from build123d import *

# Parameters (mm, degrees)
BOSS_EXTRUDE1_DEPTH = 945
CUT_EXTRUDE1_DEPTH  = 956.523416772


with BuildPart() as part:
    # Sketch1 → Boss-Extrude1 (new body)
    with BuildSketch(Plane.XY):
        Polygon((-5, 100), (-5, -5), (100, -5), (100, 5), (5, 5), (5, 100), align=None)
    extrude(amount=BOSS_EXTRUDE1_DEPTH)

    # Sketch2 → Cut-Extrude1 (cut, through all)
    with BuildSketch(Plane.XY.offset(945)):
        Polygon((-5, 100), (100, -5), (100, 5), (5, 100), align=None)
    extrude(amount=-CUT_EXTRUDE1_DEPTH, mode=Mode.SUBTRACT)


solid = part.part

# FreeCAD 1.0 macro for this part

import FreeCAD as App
import Part
import Sketcher


def add_polygon(sketch, points):
    """Adds a closed chain of lines whose ends are joined by coincident constraints."""
    first, n = sketch.GeometryCount, len(points)
    for a, b in zip(points, points[1:] + points[:1]):
        sketch.addGeometry(Part.LineSegment(App.Vector(*a, 0), App.Vector(*b, 0)), False)
    for i in range(n):
        sketch.addConstraint(Sketcher.Constraint("Coincident", first + i, 2, first + (i + 1) % n, 1))

doc = App.newDocument("Part")
body = doc.addObject("PartDesign::Body", "Body")

# Sketch on XY plane
sketch1 = doc.addObject("Sketcher::SketchObject", "Sketch")
body.addObject(sketch1)
sketch1.AttachmentSupport = (doc.XY_Plane, [""])
sketch1.MapMode = "FlatFace"
add_polygon(sketch1, [(-5, 100), (-5, -5), (100, -5), (100, 5), (5, 5), (5, 100)])  # lines 0-5
sketch1.addConstraint([
    Sketcher.Constraint("Vertical", 0),
    Sketcher.Constraint("Horizontal", 1),
    Sketcher.Constraint("Vertical", 2),
    Sketcher.Constraint("Horizontal", 3),
    Sketcher.Constraint("Vertical", 4),
    Sketcher.Constraint("Horizontal", 5),
    Sketcher.Constraint("Symmetric", 0, 2, 3, 2, -1, 1),
    Sketcher.Constraint("Equal", 1, 0),
    Sketcher.Constraint("Equal", 5, 2),
    Sketcher.Constraint("DistanceX", 1, 1, 1, 2, 105.0),
    Sketcher.Constraint("DistanceX", 3, 2, 3, 1, 95.0),
])
pad1 = doc.addObject("PartDesign::Pad", "Pad")
body.addObject(pad1)
pad1.Profile = sketch1
pad1.Length = 945

# Sketch on XY plane
sketch2 = doc.addObject("Sketcher::SketchObject", "Sketch001")
body.addObject(sketch2)
sketch2.AttachmentSupport = (doc.XY_Plane, [""])
sketch2.MapMode = "FlatFace"
sketch2.AttachmentOffset = App.Placement(App.Vector(0, 0, 945), App.Rotation())
add_polygon(sketch2, [(-5, 100), (100, -5), (100, 5), (5, 100)])  # lines 0-3
sketch2.addConstraint([
    Sketcher.Constraint("Vertical", 1),
    Sketcher.Constraint("Horizontal", 3),
    Sketcher.Constraint("Parallel", 0, 2),
    Sketcher.Constraint("Equal", 3, 1),
    Sketcher.Constraint("DistanceX", 3, 2, 3, 1, 10.0),
    Sketcher.Constraint("DistanceX", -1, 1, 0, 2, 100.0),
    Sketcher.Constraint("DistanceY", 0, 2, -1, 1, 5.0),
    Sketcher.Constraint("DistanceX", -1, 1, 2, 2, 5.0),
])
pocket1 = doc.addObject("PartDesign::Pocket", "Pocket")
body.addObject(pocket1)
pocket1.Profile = sketch2
pocket1.Type = "ThroughAll"

doc.recompute()
